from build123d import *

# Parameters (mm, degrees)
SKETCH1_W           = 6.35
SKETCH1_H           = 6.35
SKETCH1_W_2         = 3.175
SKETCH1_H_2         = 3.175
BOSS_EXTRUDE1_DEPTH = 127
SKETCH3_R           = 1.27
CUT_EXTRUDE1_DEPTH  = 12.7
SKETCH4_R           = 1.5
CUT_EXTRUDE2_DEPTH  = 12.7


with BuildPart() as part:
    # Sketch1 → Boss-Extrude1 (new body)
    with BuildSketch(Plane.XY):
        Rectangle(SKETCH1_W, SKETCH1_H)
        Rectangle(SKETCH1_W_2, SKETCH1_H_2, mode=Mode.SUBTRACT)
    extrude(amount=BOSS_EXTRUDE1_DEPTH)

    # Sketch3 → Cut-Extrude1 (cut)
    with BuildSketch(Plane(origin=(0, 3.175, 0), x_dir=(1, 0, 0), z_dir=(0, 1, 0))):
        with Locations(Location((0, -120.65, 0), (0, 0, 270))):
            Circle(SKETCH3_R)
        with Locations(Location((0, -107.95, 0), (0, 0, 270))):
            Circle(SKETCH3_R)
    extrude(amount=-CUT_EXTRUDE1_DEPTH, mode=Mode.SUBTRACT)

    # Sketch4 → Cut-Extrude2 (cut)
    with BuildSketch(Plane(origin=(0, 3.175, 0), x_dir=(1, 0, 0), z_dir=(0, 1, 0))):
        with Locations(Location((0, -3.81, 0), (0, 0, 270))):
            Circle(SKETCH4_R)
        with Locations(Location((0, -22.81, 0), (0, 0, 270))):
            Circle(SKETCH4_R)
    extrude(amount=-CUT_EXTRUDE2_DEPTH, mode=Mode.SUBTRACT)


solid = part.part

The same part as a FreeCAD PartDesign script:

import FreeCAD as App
import Part
import Sketcher
Q = App.Units.Quantity


def add_polygon(sketch, points):
    """Adds a closed chain of lines whose ends are joined by coincident constraints."""
    first, n = sketch.GeometryCount, len(points)
    for a, b in zip(points, points[1:] + points[:1]):
        sketch.addGeometry(Part.LineSegment(App.Vector(*a, 0), App.Vector(*b, 0)), False)
    for i in range(n):
        sketch.addConstraint(Sketcher.Constraint("Coincident", first + i, 2, first + (i + 1) % n, 1))

doc = App.newDocument("Part")
body = doc.addObject("PartDesign::Body", "Body")

sketch1 = body.newObject("Sketcher::SketchObject", "Sketch")
sketch1.AttachmentSupport = (doc.getObject("XY_Plane"), [""])
sketch1.MapMode = "FlatFace"
add_polygon(sketch1, [(-3.175, 3.175), (-3.175, -3.175), (3.175, -3.175), (3.175, 3.175)])
add_polygon(sketch1, [(1.5875, -1.5875), (-1.5875, -1.5875), (-1.5875, 1.5875), (1.5875, 1.5875)])
sketch1.addConstraint(Sketcher.Constraint("Vertical", 0))
sketch1.addConstraint(Sketcher.Constraint("Horizontal", 1))
sketch1.addConstraint(Sketcher.Constraint("Vertical", 2))
sketch1.addConstraint(Sketcher.Constraint("Horizontal", 3))
sketch1.addConstraint(Sketcher.Constraint("Horizontal", 4))
sketch1.addConstraint(Sketcher.Constraint("Vertical", 5))
sketch1.addConstraint(Sketcher.Constraint("Horizontal", 6))
sketch1.addConstraint(Sketcher.Constraint("Vertical", 7))
sketch1.addConstraint(Sketcher.Constraint("Symmetric", 0, 2, 2, 2, -1, 1))
sketch1.addConstraint(Sketcher.Constraint("Symmetric", 4, 2, 6, 2, -1, 1))
sketch1.addConstraint(Sketcher.Constraint("Equal", 3, 0))
sketch1.addConstraint(Sketcher.Constraint("Equal", 6, 5))
sketch1.addConstraint(Sketcher.Constraint("DistanceX", 1, 1, 1, 2, Q("0.25 in")))
sketch1.addConstraint(Sketcher.Constraint("DistanceX", 4, 2, 4, 1, Q("0.125 in")))
pad1 = body.newObject("PartDesign::Pad", "Pad")
pad1.Profile = sketch1
pad1.Length = Q("5 in")

sketch2 = body.newObject("Sketcher::SketchObject", "Sketch001")
sketch2.AttachmentSupport = (doc.getObject("XZ_Plane"), [""])
sketch2.MapMode = "FlatFace"
sketch2.AttachmentOffset = App.Placement(App.Vector(0, 0, -0.125 * 25.4), App.Rotation())
sketch2.addGeometry(Part.Circle(App.Vector(0, 120.65, 0), App.Vector(0, 0, 1), 1.27), False)
sketch2.addGeometry(Part.Circle(App.Vector(0, 107.95, 0), App.Vector(0, 0, 1), 1.27), False)
sketch2.addConstraint(Sketcher.Constraint("Equal", 0, 1))
sketch2.addConstraint(Sketcher.Constraint("PointOnObject", 0, 3, -2))
sketch2.addConstraint(Sketcher.Constraint("PointOnObject", 1, 3, -2))
sketch2.addConstraint(Sketcher.Constraint("Diameter", 0, Q("0.1 in")))
sketch2.addConstraint(Sketcher.Constraint("DistanceY", 1, 3, 0, 3, Q("0.5 in")))
sketch2.addConstraint(Sketcher.Constraint("DistanceY", -1, 1, 0, 3, Q("4.75 in")))
pocket1 = body.newObject("PartDesign::Pocket", "Pocket")
pocket1.Profile = sketch2
pocket1.Length = Q("0.5 in")
pocket1.Reversed = True

sketch3 = body.newObject("Sketcher::SketchObject", "Sketch002")
sketch3.AttachmentSupport = (doc.getObject("XZ_Plane"), [""])
sketch3.MapMode = "FlatFace"
sketch3.AttachmentOffset = App.Placement(App.Vector(0, 0, -0.125 * 25.4), App.Rotation())
sketch3.addGeometry(Part.Circle(App.Vector(0, 3.81, 0), App.Vector(0, 0, 1), 1.5), False)
sketch3.addGeometry(Part.Circle(App.Vector(0, 22.81, 0), App.Vector(0, 0, 1), 1.5), False)
sketch3.addConstraint(Sketcher.Constraint("Equal", 0, 1))
sketch3.addConstraint(Sketcher.Constraint("PointOnObject", 0, 3, -2))
sketch3.addConstraint(Sketcher.Constraint("PointOnObject", 1, 3, -2))
sketch3.addConstraint(Sketcher.Constraint("Diameter", 0, 3.0))
sketch3.addConstraint(Sketcher.Constraint("DistanceY", -1, 1, 0, 3, Q("0.15 in")))
sketch3.addConstraint(Sketcher.Constraint("DistanceY", -1, 1, 1, 3, 22.81))
pocket2 = body.newObject("PartDesign::Pocket", "Pocket001")
pocket2.Profile = sketch3
pocket2.Length = Q("0.5 in")
pocket2.Reversed = True

doc.recompute()
